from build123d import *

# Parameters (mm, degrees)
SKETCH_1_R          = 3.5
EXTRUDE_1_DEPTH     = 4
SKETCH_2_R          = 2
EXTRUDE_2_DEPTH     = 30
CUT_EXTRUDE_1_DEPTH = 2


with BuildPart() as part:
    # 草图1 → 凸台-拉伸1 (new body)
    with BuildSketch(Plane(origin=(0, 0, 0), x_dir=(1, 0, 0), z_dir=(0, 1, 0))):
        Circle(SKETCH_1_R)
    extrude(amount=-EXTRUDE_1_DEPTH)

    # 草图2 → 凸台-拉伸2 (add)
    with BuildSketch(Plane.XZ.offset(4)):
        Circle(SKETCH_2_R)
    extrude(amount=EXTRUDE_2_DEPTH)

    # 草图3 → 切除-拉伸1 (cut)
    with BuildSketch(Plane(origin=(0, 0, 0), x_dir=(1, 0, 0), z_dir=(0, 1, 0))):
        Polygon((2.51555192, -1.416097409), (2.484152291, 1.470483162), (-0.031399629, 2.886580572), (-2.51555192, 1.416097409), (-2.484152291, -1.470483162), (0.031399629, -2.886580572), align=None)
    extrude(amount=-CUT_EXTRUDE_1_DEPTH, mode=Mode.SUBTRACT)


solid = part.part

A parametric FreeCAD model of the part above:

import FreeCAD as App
import Part
import Sketcher
Q = App.Units.Quantity

doc = App.newDocument("Part")
params = doc.addObject("Spreadsheet::Sheet", "Params")
for row, (alias, value) in enumerate([
    ("sketch1_diameter", "7 mm"),
    ("pad1_length", "4 mm"),
    ("sketch2_diameter", "4 mm"),
    ("pad2_length", "30 mm"),
    ("pocket1_length", "2 mm"),
], start=1):
    params.set(f"A{row}", alias)
    params.set(f"B{row}", "=" + value)
    params.setAlias(f"B{row}", alias)

body = doc.addObject("PartDesign::Body", "Body")

sketch1 = doc.addObject("Sketcher::SketchObject", "Sketch")
body.addObject(sketch1)
sketch1.AttachmentSupport = (doc.XZ_Plane, [""])
sketch1.MapMode = "FlatFace"
sketch1.addGeometry(Part.Circle(App.Vector(0, 0, 0), App.Vector(0, 0, 1), 3.5), False)
sketch1.addConstraint(Sketcher.Constraint("Coincident", 0, 3, -1, 1))
sketch1.addConstraint(Sketcher.Constraint("Diameter", 0, Q("7 mm")))
sketch1.setExpression("Constraints[1]", "Params.sketch1_diameter")
pad1 = doc.addObject("PartDesign::Pad", "Pad")
body.addObject(pad1)
pad1.Profile = sketch1
pad1.setExpression("Length", "Params.pad1_length")

sketch2 = doc.addObject("Sketcher::SketchObject", "Sketch001")
body.addObject(sketch2)
sketch2.AttachmentSupport = (doc.XZ_Plane, [""])
sketch2.MapMode = "FlatFace"
sketch2.AttachmentOffset = App.Placement(App.Vector(0, 0, 4), App.Rotation())
sketch2.addGeometry(Part.Circle(App.Vector(0, 0, 0), App.Vector(0, 0, 1), 2), False)
sketch2.addConstraint(Sketcher.Constraint("Coincident", 0, 3, -1, 1))
sketch2.addConstraint(Sketcher.Constraint("Diameter", 0, Q("4 mm")))
sketch2.setExpression("Constraints[1]", "Params.sketch2_diameter")
pad2 = doc.addObject("PartDesign::Pad", "Pad001")
body.addObject(pad2)
pad2.Profile = sketch2
pad2.setExpression("Length", "Params.pad2_length")

sketch3 = doc.addObject("Sketcher::SketchObject", "Sketch002")
body.addObject(sketch3)
sketch3.AttachmentSupport = (doc.XZ_Plane, [""])
sketch3.MapMode = "FlatFace"
sketch3.addGeometry(Part.LineSegment(App.Vector(2.5, 1.4, 0), App.Vector(2.5, -1.5, 0)), False)
sketch3.addGeometry(Part.LineSegment(App.Vector(2.5, -1.5, 0), App.Vector(0, -2.9, 0)), False)
sketch3.addGeometry(Part.LineSegment(App.Vector(0, -2.9, 0), App.Vector(-2.5, -1.4, 0)), False)
sketch3.addGeometry(Part.LineSegment(App.Vector(-2.5, -1.4, 0), App.Vector(-2.5, 1.5, 0)), False)
sketch3.addGeometry(Part.LineSegment(App.Vector(-2.5, 1.5, 0), App.Vector(0, 2.9, 0)), False)
sketch3.addGeometry(Part.LineSegment(App.Vector(0, 2.9, 0), App.Vector(2.5, 1.4, 0)), False)
sketch3.addConstraint(Sketcher.Constraint("Coincident", 0, 2, 1, 1))
sketch3.addConstraint(Sketcher.Constraint("Coincident", 1, 2, 2, 1))
sketch3.addConstraint(Sketcher.Constraint("Coincident", 2, 2, 3, 1))
sketch3.addConstraint(Sketcher.Constraint("Coincident", 3, 2, 4, 1))
sketch3.addConstraint(Sketcher.Constraint("Coincident", 4, 2, 5, 1))
sketch3.addConstraint(Sketcher.Constraint("Coincident", 5, 2, 0, 1))
sketch3.addConstraint(Sketcher.Constraint("Symmetric", 0, 2, 3, 2, -1, 1))
sketch3.addConstraint(Sketcher.Constraint("Symmetric", 1, 2, 4, 2, -1, 1))
sketch3.addConstraint(Sketcher.Constraint("Symmetric", 2, 2, 5, 2, -1, 1))
sketch3.addConstraint(Sketcher.Constraint("Equal", 0, 1))
sketch3.addConstraint(Sketcher.Constraint("Equal", 1, 2))
sketch3.addConstraint(Sketcher.Constraint("DistanceX", 1, 2, -1, 1, Q("0.0314 mm")))
sketch3.addConstraint(Sketcher.Constraint("DistanceX", 2, 2, 3, 2, Q("0.0314 mm")))
sketch3.addConstraint(Sketcher.Constraint("Distance", 0, Q("2.886751 mm")))
sketch3.addConstraint(Sketcher.Constraint("DistanceY", 1, 2, -1, 1, Q("2.886581 mm")))
pocket1 = doc.addObject("PartDesign::Pocket", "Pocket")
body.addObject(pocket1)
pocket1.Profile = sketch3
pocket1.setExpression("Length", "Params.pocket1_length")
pocket1.Reversed = True

doc.recompute()
